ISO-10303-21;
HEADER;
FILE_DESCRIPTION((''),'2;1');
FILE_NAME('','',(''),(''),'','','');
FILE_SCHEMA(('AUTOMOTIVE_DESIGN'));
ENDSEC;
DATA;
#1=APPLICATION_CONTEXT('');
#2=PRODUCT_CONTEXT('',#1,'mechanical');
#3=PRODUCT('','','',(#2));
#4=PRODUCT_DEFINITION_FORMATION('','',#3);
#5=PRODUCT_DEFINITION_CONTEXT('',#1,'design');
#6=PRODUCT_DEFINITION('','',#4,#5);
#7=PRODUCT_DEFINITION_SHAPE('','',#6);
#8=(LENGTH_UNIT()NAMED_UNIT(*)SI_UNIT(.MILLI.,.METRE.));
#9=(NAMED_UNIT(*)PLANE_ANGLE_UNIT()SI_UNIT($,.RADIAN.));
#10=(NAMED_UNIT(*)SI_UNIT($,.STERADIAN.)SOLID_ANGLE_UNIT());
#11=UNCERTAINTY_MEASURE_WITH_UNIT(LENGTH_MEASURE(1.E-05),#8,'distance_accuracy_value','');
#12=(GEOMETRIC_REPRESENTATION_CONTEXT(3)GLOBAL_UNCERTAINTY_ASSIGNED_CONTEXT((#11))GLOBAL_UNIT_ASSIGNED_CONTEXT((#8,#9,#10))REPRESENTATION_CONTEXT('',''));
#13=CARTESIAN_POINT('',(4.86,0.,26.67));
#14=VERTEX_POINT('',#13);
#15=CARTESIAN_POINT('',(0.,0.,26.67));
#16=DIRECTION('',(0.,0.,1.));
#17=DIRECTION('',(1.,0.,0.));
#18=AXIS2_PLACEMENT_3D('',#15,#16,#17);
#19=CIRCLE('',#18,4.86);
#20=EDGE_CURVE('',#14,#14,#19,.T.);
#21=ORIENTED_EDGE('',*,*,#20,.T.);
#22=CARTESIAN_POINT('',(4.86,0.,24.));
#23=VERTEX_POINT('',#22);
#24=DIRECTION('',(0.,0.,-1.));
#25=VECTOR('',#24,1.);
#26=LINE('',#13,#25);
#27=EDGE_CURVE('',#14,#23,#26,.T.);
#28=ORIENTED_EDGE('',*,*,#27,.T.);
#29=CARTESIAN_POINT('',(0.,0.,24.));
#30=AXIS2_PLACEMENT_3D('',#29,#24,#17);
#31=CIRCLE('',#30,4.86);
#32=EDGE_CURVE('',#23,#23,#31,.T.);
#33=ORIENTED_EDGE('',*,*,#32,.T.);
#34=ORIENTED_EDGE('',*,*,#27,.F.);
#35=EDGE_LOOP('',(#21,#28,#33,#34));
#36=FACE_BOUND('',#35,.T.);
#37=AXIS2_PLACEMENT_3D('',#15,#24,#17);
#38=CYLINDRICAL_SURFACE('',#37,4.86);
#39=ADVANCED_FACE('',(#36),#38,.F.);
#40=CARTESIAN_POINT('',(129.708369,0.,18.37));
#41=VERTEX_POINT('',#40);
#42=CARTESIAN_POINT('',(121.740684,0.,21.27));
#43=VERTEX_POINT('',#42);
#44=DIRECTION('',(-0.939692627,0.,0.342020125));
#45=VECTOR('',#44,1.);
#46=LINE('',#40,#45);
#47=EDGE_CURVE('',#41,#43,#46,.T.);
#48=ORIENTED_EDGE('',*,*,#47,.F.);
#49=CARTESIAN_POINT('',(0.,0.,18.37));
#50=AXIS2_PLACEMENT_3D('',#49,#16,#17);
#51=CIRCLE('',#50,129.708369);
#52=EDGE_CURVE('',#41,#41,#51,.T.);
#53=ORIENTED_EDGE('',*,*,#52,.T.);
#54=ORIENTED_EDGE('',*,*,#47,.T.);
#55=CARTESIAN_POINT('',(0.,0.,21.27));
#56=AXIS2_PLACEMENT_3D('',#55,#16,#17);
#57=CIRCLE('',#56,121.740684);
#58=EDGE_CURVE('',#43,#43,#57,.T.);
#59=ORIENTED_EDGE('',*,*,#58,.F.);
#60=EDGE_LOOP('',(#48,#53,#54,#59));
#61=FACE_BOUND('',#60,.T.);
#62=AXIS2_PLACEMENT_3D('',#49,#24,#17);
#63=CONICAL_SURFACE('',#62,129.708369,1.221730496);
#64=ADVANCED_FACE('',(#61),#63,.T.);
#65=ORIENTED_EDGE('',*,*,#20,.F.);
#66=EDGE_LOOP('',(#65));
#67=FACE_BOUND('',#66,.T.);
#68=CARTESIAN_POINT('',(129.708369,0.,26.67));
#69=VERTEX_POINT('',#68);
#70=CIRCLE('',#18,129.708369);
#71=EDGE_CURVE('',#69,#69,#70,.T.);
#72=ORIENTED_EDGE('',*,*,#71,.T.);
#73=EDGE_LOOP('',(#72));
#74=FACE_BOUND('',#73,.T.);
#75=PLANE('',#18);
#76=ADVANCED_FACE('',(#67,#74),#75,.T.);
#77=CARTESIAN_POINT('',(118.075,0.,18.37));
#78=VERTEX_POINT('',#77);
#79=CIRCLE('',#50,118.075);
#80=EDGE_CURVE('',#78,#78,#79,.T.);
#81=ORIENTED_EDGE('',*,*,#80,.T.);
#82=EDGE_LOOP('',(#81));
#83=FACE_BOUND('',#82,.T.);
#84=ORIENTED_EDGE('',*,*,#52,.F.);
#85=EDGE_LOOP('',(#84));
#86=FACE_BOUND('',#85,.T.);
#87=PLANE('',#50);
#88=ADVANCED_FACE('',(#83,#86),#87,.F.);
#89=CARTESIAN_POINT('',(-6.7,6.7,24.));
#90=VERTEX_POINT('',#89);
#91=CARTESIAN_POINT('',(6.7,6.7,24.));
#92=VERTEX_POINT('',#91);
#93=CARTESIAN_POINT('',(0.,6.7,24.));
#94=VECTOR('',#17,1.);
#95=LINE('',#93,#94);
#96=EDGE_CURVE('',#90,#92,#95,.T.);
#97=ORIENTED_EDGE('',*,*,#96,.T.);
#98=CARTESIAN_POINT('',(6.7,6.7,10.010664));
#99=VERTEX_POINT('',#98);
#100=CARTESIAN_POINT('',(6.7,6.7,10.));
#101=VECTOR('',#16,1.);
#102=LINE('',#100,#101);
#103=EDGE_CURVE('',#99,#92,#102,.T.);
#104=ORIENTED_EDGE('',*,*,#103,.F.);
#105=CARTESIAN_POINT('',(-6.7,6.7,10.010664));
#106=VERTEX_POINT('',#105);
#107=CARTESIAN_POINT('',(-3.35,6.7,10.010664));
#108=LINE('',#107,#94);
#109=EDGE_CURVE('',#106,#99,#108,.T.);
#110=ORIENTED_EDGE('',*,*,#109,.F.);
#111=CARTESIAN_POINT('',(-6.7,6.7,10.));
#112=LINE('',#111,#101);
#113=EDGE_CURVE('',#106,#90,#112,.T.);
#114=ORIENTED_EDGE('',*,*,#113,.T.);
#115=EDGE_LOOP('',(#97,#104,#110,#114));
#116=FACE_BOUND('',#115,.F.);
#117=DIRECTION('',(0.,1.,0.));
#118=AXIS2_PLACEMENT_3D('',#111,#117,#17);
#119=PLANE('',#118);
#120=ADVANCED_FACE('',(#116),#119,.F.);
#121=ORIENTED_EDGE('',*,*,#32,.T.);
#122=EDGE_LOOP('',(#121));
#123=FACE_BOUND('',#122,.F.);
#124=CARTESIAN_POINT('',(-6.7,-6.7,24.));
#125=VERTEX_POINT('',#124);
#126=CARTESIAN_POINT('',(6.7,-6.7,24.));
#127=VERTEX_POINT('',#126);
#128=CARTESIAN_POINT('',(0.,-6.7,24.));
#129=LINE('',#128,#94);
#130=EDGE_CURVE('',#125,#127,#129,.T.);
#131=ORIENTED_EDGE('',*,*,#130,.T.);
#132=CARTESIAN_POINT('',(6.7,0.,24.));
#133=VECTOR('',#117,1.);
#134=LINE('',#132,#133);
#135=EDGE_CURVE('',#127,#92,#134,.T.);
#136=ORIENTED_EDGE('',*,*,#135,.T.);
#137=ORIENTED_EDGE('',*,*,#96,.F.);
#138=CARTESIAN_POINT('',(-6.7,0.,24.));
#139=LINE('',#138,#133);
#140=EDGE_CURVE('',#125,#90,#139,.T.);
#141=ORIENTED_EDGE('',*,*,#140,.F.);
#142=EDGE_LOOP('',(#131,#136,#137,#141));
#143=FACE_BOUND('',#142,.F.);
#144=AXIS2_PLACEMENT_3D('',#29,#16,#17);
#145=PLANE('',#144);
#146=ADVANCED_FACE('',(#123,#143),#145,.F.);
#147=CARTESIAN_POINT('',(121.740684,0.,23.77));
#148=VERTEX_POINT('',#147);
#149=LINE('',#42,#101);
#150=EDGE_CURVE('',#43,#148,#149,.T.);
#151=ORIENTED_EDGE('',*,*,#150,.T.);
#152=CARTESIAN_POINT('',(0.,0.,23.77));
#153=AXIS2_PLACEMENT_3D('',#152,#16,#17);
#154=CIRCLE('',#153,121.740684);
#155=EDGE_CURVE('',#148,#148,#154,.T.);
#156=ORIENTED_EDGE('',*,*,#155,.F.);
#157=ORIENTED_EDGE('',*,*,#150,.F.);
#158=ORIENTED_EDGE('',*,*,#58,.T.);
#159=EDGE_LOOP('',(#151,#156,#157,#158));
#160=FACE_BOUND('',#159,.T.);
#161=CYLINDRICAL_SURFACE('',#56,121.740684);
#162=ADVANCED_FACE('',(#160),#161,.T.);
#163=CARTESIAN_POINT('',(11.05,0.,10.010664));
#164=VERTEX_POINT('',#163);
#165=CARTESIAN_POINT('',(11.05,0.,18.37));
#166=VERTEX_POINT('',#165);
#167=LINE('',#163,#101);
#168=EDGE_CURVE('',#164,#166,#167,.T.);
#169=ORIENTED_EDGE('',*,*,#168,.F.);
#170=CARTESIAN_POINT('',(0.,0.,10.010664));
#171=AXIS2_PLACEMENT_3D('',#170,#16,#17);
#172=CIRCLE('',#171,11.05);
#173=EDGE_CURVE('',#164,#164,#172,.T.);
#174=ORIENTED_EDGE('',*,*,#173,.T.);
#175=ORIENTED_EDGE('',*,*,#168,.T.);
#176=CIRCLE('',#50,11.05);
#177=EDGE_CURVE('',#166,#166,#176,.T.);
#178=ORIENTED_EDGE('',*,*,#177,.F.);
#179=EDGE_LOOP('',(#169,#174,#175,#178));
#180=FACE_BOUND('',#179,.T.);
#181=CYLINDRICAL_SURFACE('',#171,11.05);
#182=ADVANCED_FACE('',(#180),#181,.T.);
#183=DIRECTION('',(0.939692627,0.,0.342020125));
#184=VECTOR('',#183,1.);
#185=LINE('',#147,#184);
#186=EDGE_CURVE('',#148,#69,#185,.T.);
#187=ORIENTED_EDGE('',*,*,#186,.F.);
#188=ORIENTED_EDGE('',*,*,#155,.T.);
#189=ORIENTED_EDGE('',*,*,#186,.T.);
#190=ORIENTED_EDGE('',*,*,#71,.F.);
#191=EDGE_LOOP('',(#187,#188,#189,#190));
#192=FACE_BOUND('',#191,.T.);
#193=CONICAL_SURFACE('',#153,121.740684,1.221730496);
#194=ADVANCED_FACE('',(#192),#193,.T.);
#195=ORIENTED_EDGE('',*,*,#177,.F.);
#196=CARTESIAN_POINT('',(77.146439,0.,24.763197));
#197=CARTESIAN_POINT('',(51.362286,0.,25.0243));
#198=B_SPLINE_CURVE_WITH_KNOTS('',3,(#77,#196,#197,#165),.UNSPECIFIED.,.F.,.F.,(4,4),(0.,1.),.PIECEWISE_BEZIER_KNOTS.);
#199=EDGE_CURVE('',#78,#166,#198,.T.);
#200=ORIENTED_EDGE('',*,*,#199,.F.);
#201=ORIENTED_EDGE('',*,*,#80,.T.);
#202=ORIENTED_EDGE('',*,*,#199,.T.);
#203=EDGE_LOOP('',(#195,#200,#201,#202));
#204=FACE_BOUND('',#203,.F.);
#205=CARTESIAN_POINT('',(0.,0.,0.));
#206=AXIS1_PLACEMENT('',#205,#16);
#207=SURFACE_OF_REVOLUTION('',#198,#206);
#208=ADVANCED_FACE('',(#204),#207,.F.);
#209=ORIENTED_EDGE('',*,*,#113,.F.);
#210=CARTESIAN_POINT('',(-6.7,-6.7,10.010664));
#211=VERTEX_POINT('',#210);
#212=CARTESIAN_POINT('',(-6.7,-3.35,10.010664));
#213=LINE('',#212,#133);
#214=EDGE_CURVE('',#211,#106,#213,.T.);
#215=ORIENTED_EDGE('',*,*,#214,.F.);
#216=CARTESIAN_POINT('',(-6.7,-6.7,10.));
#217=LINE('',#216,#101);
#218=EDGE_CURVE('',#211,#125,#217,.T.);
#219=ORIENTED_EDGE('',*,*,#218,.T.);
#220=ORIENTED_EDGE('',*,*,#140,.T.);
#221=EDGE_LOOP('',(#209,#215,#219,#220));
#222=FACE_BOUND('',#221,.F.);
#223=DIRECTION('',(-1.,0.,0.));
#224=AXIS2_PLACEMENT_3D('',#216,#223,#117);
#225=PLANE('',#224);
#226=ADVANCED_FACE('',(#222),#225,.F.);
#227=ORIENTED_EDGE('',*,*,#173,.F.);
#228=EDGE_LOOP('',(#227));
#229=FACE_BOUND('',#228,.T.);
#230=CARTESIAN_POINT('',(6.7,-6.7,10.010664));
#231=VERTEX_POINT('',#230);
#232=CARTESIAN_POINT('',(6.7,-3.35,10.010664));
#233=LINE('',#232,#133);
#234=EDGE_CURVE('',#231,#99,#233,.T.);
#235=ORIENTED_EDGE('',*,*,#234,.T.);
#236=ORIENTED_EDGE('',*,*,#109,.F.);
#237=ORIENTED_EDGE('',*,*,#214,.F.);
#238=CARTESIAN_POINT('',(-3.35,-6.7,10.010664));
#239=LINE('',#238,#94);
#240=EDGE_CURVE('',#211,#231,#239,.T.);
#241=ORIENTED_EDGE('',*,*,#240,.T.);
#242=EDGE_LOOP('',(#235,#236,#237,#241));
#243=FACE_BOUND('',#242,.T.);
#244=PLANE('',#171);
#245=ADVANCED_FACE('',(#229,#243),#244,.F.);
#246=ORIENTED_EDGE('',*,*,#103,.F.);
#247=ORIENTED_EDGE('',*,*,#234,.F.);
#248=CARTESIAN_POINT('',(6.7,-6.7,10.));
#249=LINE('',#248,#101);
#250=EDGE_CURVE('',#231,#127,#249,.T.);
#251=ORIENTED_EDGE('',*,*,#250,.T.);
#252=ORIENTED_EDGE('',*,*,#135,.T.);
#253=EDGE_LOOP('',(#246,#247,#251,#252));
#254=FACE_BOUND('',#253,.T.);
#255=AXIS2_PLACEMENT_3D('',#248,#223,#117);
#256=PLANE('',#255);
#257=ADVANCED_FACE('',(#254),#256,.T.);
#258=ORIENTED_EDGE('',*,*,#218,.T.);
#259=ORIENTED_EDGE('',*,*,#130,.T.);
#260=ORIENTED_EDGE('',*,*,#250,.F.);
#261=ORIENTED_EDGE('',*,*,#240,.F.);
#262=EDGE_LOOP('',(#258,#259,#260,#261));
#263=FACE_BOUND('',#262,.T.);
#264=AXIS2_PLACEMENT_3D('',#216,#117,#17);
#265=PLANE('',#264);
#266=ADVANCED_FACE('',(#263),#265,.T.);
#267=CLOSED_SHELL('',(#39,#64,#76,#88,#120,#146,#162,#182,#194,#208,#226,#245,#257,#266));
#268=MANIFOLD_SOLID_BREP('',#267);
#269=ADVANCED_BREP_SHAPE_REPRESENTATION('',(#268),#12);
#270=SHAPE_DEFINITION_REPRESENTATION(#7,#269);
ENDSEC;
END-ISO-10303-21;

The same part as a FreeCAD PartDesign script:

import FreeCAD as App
import Part
import Sketcher

V = App.Vector
Q = App.Units.Quantity

doc = App.newDocument("Part")
body = doc.addObject("PartDesign::Body", "Body")

# Sketch on XY plane
sketch1 = doc.addObject("Sketcher::SketchObject", "Sketch")
body.addObject(sketch1)
sketch1.AttachmentSupport = (doc.XY_Plane, [""])
sketch1.MapMode = "FlatFace"
sketch1.AttachmentOffset = App.Placement(V(0, 0, 10), App.Rotation())
sketch1.addGeometry(Part.LineSegment(V(-6.7, 6.7, 0), V(-6.7, -6.7, 0)), False)
sketch1.addGeometry(Part.LineSegment(V(-6.7, -6.7, 0), V(6.7, -6.7, 0)), False)
sketch1.addGeometry(Part.LineSegment(V(6.7, -6.7, 0), V(6.7, 6.7, 0)), False)
sketch1.addGeometry(Part.LineSegment(V(6.7, 6.7, 0), V(-6.7, 6.7, 0)), False)
sketch1.addConstraint(Sketcher.Constraint("Coincident", 0, 2, 1, 1))
sketch1.addConstraint(Sketcher.Constraint("Coincident", 1, 2, 2, 1))
sketch1.addConstraint(Sketcher.Constraint("Coincident", 2, 2, 3, 1))
sketch1.addConstraint(Sketcher.Constraint("Coincident", 3, 2, 0, 1))
sketch1.addConstraint(Sketcher.Constraint("Vertical", 0))
sketch1.addConstraint(Sketcher.Constraint("Horizontal", 1))
sketch1.addConstraint(Sketcher.Constraint("Vertical", 2))
sketch1.addConstraint(Sketcher.Constraint("Horizontal", 3))
sketch1.addConstraint(Sketcher.Constraint("Symmetric", 0, 2, 2, 2, -1, 1))
sketch1.addConstraint(Sketcher.Constraint("Equal", 3, 0))
sketch1.addConstraint(Sketcher.Constraint("DistanceX", 1, 1, 1, 2, 13.4))
pad1 = doc.addObject("PartDesign::Pad", "Pad")
body.addObject(pad1)
pad1.Profile = sketch1
pad1.Length = 14
body2 = doc.addObject("PartDesign::Body", "Body001")

# Sketch on XZ plane
sketch2 = doc.addObject("Sketcher::SketchObject", "Sketch001")
body2.addObject(sketch2)
sketch2.AttachmentSupport = (doc.getObject("XZ_Plane001"), [""])
sketch2.MapMode = "FlatFace"
sketch2.addGeometry(Part.LineSegment(V(118.075, 18.37, 0), V(129.708369, 18.37, 0)), False)
sketch2.addGeometry(Part.LineSegment(V(129.708369, 18.37, 0), V(121.740684, 21.27, 0)), False)
sketch2.addGeometry(Part.LineSegment(V(121.740684, 21.27, 0), V(121.740684, 23.77, 0)), False)
sketch2.addGeometry(Part.LineSegment(V(121.740684, 23.77, 0), V(129.708369, 26.67, 0)), False)
sketch2.addGeometry(Part.LineSegment(V(129.708369, 26.67, 0), V(4.86, 26.67, 0)), False)
sketch2.addGeometry(Part.LineSegment(V(4.86, 26.67, 0), V(4.86, 10.010664, 0)), False)
sketch2.addGeometry(Part.LineSegment(V(4.86, 10.010664, 0), V(11.05, 10.010664, 0)), False)
sketch2.addGeometry(Part.LineSegment(V(11.05, 10.010664, 0), V(11.05, 18.37, 0)), False)
sketch2.addGeometry(Part.BSplineCurve([V(118.075, 18.37, 0), V(77.146439, 24.763197, 0), V(51.362286, 25.0243, 0), V(11.05, 18.37, 0)], [4, 4], [0, 1], False, 3, [1, 1, 1, 1], False), False)
sketch2.addConstraint(Sketcher.Constraint("Block", 8))
sketch2.addConstraint(Sketcher.Constraint("Coincident", 0, 2, 1, 1))
sketch2.addConstraint(Sketcher.Constraint("Coincident", 1, 2, 2, 1))
sketch2.addConstraint(Sketcher.Constraint("Coincident", 2, 2, 3, 1))
sketch2.addConstraint(Sketcher.Constraint("Coincident", 3, 2, 4, 1))
sketch2.addConstraint(Sketcher.Constraint("Coincident", 4, 2, 5, 1))
sketch2.addConstraint(Sketcher.Constraint("Coincident", 5, 2, 6, 1))
sketch2.addConstraint(Sketcher.Constraint("Coincident", 6, 2, 7, 1))
sketch2.addConstraint(Sketcher.Constraint("Coincident", 7, 2, 8, 2))
sketch2.addConstraint(Sketcher.Constraint("Coincident", 8, 1, 0, 1))
sketch2.addConstraint(Sketcher.Constraint("Horizontal", 0))
sketch2.addConstraint(Sketcher.Constraint("Vertical", 2))
sketch2.addConstraint(Sketcher.Constraint("Horizontal", 4))
sketch2.addConstraint(Sketcher.Constraint("Vertical", 5))
sketch2.addConstraint(Sketcher.Constraint("Horizontal", 6))
sketch2.addConstraint(Sketcher.Constraint("Vertical", 7))
sketch2.addConstraint(Sketcher.Constraint("Vertical", 0, 2, 3, 2))
sketch2.addConstraint(Sketcher.Constraint("Equal", 1, 3))
sketch2.addConstraint(Sketcher.Constraint("Angle", 1, Q("160.000001 deg")))
sketch2.addConstraint(Sketcher.Constraint("DistanceY", 2, 1, 2, 2, 2.5))
sketch2.addConstraint(Sketcher.Constraint("DistanceX", 6, 1, 6, 2, 6.19))
sketch2.addConstraint(Sketcher.Constraint("DistanceY", 0, 2, 1, 2, 2.9))
sketch2.addConstraint(Sketcher.Constraint("DistanceX", 0, 1, 0, 2, 11.633369))
sketch2.addConstraint(Sketcher.Constraint("DistanceY", 5, 2, 5, 1, 16.659336))
revolution = doc.addObject("PartDesign::Revolution", "Revolution")
body2.addObject(revolution)
revolution.Profile = sketch2
revolution.ReferenceAxis = (sketch2, ["V_Axis"])
revolution.Angle = 360
doc.recompute()

boolean = doc.addObject("PartDesign::Boolean", "Boolean")
body2.addObject(boolean)
boolean.Type = "Cut"
boolean.addObjects([body])

doc.recompute()
